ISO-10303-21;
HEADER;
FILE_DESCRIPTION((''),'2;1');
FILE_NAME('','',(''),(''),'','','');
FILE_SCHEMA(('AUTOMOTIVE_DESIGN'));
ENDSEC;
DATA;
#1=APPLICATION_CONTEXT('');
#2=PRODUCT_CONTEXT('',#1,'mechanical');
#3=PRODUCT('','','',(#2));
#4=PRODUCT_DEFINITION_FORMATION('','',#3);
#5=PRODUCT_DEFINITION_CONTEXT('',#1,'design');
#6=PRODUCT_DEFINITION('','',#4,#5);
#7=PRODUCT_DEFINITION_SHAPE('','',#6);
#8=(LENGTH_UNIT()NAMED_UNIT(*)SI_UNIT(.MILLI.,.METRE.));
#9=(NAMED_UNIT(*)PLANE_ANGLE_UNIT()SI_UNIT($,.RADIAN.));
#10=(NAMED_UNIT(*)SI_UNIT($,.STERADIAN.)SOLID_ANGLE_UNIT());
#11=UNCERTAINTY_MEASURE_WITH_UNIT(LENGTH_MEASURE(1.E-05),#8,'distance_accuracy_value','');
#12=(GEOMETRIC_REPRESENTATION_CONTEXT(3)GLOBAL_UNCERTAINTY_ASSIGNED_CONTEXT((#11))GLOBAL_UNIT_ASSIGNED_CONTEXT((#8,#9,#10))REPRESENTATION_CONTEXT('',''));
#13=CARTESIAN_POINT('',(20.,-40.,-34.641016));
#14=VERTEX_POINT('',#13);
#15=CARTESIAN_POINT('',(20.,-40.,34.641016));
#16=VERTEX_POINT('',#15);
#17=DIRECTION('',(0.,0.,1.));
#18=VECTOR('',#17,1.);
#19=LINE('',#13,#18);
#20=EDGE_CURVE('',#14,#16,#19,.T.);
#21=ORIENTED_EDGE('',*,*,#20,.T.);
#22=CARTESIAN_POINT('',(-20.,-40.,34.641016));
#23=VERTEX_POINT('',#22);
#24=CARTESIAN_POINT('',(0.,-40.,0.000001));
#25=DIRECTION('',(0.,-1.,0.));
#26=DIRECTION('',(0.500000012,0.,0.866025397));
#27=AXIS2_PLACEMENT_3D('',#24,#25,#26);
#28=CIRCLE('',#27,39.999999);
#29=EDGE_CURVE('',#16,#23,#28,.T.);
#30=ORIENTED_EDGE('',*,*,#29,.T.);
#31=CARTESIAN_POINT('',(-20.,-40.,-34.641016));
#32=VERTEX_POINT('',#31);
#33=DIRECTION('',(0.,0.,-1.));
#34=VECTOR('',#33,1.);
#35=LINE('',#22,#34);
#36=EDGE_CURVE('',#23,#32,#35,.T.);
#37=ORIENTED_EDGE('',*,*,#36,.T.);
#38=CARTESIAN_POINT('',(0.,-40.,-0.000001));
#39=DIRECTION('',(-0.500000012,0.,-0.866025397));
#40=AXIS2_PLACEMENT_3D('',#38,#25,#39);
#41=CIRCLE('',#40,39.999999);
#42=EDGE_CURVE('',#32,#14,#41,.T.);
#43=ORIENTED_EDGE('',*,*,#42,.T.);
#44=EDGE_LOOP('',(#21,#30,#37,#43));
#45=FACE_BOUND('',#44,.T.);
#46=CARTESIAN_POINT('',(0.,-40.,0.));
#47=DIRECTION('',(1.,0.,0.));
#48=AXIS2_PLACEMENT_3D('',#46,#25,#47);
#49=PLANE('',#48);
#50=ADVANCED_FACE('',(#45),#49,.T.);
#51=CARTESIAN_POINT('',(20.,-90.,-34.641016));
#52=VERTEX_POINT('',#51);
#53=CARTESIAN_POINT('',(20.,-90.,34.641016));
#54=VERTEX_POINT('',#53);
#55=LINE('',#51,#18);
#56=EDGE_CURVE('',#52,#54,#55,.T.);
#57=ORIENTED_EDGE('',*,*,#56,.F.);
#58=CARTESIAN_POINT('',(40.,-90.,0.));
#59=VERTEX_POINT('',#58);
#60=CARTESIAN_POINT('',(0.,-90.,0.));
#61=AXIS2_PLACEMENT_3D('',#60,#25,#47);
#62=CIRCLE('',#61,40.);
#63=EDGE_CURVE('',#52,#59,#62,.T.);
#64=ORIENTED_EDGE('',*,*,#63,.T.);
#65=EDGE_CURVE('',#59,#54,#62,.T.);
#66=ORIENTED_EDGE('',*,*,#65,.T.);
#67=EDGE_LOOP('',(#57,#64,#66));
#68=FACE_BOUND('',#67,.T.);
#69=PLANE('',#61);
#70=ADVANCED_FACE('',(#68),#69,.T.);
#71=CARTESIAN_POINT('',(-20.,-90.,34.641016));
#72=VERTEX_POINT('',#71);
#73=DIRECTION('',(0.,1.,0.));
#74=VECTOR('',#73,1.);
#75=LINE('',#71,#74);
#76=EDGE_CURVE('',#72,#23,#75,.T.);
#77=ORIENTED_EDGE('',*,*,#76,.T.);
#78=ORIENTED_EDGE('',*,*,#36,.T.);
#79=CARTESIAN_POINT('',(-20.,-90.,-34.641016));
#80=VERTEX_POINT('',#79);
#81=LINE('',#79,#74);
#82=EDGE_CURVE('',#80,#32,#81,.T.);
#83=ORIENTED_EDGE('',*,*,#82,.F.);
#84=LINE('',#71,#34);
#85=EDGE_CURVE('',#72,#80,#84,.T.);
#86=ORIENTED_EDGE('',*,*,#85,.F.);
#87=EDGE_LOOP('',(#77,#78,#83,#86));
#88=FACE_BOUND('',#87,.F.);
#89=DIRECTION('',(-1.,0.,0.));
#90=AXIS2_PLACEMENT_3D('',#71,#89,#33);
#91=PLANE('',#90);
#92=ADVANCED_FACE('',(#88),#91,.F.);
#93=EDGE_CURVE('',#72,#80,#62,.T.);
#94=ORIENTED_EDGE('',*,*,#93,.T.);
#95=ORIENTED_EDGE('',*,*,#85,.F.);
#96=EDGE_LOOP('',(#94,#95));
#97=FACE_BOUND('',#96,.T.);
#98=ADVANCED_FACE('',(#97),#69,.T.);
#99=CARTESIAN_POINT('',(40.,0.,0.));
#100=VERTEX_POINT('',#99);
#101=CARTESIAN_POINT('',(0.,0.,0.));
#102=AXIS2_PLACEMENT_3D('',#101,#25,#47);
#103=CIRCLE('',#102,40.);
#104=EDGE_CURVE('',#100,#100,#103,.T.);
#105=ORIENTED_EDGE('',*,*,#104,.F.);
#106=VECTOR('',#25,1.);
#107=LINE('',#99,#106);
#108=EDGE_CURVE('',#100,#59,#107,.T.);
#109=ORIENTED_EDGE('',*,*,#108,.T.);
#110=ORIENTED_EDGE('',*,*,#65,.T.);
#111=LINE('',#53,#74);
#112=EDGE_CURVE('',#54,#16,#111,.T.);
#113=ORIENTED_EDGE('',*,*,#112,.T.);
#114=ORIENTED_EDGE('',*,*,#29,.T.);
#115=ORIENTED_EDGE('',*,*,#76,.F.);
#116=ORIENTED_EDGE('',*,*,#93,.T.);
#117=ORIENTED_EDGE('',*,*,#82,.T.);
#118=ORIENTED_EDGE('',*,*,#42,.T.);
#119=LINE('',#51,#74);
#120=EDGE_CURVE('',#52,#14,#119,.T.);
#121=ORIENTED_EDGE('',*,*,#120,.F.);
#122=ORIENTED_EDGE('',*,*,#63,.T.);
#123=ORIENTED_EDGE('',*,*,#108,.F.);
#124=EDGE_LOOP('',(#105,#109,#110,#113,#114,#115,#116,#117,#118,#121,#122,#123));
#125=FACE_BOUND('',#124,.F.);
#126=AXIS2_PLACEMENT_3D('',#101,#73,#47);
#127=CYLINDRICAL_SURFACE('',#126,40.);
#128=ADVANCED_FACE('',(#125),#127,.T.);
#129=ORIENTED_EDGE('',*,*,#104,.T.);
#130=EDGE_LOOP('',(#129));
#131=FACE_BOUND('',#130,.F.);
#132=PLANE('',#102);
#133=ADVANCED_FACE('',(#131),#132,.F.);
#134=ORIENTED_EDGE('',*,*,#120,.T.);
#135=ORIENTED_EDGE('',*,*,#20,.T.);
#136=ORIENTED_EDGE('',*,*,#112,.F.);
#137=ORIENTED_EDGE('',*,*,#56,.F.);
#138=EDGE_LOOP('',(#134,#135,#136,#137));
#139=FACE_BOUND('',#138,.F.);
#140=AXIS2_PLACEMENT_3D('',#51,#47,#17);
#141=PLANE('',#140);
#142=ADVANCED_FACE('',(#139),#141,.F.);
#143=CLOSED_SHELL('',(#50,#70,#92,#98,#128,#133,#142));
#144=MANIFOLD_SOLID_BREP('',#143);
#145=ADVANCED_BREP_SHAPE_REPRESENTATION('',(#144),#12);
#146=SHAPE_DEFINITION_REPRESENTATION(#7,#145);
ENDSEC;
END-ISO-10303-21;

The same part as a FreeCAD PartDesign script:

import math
import FreeCAD as App
import Part
import Sketcher

doc = App.newDocument("Part")
body = doc.addObject("PartDesign::Body", "Body")

sketch1 = body.newObject("Sketcher::SketchObject", "Sketch")
sketch1.AttachmentSupport = (doc.getObject("XZ_Plane"), [""])
sketch1.MapMode = "FlatFace"
sketch1.addGeometry(Part.Circle(App.Vector(0, 0, 0), App.Vector(0, 0, 1), 40), False)
sketch1.addConstraint(Sketcher.Constraint("Coincident", 0, 3, -1, 1))
sketch1.addConstraint(Sketcher.Constraint("Diameter", 0, 80.0))
pad1 = body.newObject("PartDesign::Pad", "Pad")
pad1.Profile = sketch1
pad1.Length = 90

sketch2 = body.newObject("Sketcher::SketchObject", "Sketch001")
sketch2.AttachmentSupport = (doc.getObject("XZ_Plane"), [""])
sketch2.MapMode = "FlatFace"
sketch2.AttachmentOffset = App.Placement(App.Vector(0, 0, 90), App.Rotation())
sketch2.addGeometry(Part.LineSegment(App.Vector(-20, 35, 0), App.Vector(-20, -35, 0)), False)
sketch2.addGeometry(Part.ArcOfCircle(Part.Circle(App.Vector(0, 0, 0), App.Vector(0, 0, 1), 40), math.radians(-120), math.radians(-60)), False)
sketch2.addGeometry(Part.LineSegment(App.Vector(20, -35, 0), App.Vector(20, 35, 0)), False)
sketch2.addGeometry(Part.ArcOfCircle(Part.Circle(App.Vector(0, 0, 0), App.Vector(0, 0, 1), 40), math.radians(60), math.radians(120)), False)
sketch2.addConstraint(Sketcher.Constraint("Coincident", 0, 2, 1, 1))
sketch2.addConstraint(Sketcher.Constraint("Coincident", 1, 2, 2, 1))
sketch2.addConstraint(Sketcher.Constraint("Coincident", 2, 2, 3, 1))
sketch2.addConstraint(Sketcher.Constraint("Coincident", 3, 2, 0, 1))
sketch2.addConstraint(Sketcher.Constraint("Vertical", 0))
sketch2.addConstraint(Sketcher.Constraint("Vertical", 2))
sketch2.addConstraint(Sketcher.Constraint("Coincident", 1, 3, -1, 1))
sketch2.addConstraint(Sketcher.Constraint("Coincident", 3, 3, -1, 1))
sketch2.addConstraint(Sketcher.Constraint("Equal", 1, 3))
sketch2.addConstraint(Sketcher.Constraint("Horizontal", 0, 2, 1, 2))
sketch2.addConstraint(Sketcher.Constraint("Radius", 1, 39.999999))
sketch2.addConstraint(Sketcher.Constraint("DistanceX", 0, 2, -1, 1, 20.0))
pocket1 = body.newObject("PartDesign::Pocket", "Pocket")
pocket1.Profile = sketch2
pocket1.Length = 50

doc.recompute()
